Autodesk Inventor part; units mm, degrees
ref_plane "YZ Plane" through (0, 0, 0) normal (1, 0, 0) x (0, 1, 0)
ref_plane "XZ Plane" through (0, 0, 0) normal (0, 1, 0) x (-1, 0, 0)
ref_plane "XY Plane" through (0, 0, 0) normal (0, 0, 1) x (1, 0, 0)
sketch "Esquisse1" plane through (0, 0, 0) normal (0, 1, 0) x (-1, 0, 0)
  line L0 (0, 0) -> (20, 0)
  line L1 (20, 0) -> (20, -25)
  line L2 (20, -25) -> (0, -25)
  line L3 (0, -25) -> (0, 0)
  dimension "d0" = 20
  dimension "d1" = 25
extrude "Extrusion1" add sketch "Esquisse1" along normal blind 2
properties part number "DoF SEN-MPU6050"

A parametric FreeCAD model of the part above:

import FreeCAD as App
import Part
import Sketcher
from FreeCAD import Vector
Q = App.Units.Quantity

doc = App.newDocument("Part")
body = doc.addObject("PartDesign::Body", "Body")

# Sketch on XZ plane
sketch1 = doc.addObject("Sketcher::SketchObject", "Sketch")
body.addObject(sketch1)
sketch1.AttachmentSupport = (doc.XZ_Plane, [""])
sketch1.MapMode = "FlatFace"
sketch1.addGeometry(Part.LineSegment(Vector(-20, 0, 0), Vector(0, 0, 0)), False)
sketch1.addGeometry(Part.LineSegment(Vector(0, 0, 0), Vector(0, -25, 0)), False)
sketch1.addGeometry(Part.LineSegment(Vector(0, -25, 0), Vector(-20, -25, 0)), False)
sketch1.addGeometry(Part.LineSegment(Vector(-20, -25, 0), Vector(-20, 0, 0)), False)
sketch1.addConstraint(Sketcher.Constraint("Coincident", 0, 2, 1, 1))
sketch1.addConstraint(Sketcher.Constraint("Coincident", 1, 2, 2, 1))
sketch1.addConstraint(Sketcher.Constraint("Coincident", 2, 2, 3, 1))
sketch1.addConstraint(Sketcher.Constraint("Coincident", 3, 2, 0, 1))
sketch1.addConstraint(Sketcher.Constraint("Horizontal", 0))
sketch1.addConstraint(Sketcher.Constraint("Vertical", 1))
sketch1.addConstraint(Sketcher.Constraint("Horizontal", 2))
sketch1.addConstraint(Sketcher.Constraint("Vertical", 3))
sketch1.addConstraint(Sketcher.Constraint("Coincident", 0, 2, -1, 1))
sketch1.addConstraint(Sketcher.Constraint("DistanceX", 0, 1, 0, 2, Q("20 mm")))
sketch1.addConstraint(Sketcher.Constraint("DistanceY", 1, 2, 1, 1, Q("25 mm")))
pad1 = doc.addObject("PartDesign::Pad", "Pad")
body.addObject(pad1)
pad1.Profile = sketch1
pad1.Length = 2
pad1.Reversed = True

doc.recompute()
